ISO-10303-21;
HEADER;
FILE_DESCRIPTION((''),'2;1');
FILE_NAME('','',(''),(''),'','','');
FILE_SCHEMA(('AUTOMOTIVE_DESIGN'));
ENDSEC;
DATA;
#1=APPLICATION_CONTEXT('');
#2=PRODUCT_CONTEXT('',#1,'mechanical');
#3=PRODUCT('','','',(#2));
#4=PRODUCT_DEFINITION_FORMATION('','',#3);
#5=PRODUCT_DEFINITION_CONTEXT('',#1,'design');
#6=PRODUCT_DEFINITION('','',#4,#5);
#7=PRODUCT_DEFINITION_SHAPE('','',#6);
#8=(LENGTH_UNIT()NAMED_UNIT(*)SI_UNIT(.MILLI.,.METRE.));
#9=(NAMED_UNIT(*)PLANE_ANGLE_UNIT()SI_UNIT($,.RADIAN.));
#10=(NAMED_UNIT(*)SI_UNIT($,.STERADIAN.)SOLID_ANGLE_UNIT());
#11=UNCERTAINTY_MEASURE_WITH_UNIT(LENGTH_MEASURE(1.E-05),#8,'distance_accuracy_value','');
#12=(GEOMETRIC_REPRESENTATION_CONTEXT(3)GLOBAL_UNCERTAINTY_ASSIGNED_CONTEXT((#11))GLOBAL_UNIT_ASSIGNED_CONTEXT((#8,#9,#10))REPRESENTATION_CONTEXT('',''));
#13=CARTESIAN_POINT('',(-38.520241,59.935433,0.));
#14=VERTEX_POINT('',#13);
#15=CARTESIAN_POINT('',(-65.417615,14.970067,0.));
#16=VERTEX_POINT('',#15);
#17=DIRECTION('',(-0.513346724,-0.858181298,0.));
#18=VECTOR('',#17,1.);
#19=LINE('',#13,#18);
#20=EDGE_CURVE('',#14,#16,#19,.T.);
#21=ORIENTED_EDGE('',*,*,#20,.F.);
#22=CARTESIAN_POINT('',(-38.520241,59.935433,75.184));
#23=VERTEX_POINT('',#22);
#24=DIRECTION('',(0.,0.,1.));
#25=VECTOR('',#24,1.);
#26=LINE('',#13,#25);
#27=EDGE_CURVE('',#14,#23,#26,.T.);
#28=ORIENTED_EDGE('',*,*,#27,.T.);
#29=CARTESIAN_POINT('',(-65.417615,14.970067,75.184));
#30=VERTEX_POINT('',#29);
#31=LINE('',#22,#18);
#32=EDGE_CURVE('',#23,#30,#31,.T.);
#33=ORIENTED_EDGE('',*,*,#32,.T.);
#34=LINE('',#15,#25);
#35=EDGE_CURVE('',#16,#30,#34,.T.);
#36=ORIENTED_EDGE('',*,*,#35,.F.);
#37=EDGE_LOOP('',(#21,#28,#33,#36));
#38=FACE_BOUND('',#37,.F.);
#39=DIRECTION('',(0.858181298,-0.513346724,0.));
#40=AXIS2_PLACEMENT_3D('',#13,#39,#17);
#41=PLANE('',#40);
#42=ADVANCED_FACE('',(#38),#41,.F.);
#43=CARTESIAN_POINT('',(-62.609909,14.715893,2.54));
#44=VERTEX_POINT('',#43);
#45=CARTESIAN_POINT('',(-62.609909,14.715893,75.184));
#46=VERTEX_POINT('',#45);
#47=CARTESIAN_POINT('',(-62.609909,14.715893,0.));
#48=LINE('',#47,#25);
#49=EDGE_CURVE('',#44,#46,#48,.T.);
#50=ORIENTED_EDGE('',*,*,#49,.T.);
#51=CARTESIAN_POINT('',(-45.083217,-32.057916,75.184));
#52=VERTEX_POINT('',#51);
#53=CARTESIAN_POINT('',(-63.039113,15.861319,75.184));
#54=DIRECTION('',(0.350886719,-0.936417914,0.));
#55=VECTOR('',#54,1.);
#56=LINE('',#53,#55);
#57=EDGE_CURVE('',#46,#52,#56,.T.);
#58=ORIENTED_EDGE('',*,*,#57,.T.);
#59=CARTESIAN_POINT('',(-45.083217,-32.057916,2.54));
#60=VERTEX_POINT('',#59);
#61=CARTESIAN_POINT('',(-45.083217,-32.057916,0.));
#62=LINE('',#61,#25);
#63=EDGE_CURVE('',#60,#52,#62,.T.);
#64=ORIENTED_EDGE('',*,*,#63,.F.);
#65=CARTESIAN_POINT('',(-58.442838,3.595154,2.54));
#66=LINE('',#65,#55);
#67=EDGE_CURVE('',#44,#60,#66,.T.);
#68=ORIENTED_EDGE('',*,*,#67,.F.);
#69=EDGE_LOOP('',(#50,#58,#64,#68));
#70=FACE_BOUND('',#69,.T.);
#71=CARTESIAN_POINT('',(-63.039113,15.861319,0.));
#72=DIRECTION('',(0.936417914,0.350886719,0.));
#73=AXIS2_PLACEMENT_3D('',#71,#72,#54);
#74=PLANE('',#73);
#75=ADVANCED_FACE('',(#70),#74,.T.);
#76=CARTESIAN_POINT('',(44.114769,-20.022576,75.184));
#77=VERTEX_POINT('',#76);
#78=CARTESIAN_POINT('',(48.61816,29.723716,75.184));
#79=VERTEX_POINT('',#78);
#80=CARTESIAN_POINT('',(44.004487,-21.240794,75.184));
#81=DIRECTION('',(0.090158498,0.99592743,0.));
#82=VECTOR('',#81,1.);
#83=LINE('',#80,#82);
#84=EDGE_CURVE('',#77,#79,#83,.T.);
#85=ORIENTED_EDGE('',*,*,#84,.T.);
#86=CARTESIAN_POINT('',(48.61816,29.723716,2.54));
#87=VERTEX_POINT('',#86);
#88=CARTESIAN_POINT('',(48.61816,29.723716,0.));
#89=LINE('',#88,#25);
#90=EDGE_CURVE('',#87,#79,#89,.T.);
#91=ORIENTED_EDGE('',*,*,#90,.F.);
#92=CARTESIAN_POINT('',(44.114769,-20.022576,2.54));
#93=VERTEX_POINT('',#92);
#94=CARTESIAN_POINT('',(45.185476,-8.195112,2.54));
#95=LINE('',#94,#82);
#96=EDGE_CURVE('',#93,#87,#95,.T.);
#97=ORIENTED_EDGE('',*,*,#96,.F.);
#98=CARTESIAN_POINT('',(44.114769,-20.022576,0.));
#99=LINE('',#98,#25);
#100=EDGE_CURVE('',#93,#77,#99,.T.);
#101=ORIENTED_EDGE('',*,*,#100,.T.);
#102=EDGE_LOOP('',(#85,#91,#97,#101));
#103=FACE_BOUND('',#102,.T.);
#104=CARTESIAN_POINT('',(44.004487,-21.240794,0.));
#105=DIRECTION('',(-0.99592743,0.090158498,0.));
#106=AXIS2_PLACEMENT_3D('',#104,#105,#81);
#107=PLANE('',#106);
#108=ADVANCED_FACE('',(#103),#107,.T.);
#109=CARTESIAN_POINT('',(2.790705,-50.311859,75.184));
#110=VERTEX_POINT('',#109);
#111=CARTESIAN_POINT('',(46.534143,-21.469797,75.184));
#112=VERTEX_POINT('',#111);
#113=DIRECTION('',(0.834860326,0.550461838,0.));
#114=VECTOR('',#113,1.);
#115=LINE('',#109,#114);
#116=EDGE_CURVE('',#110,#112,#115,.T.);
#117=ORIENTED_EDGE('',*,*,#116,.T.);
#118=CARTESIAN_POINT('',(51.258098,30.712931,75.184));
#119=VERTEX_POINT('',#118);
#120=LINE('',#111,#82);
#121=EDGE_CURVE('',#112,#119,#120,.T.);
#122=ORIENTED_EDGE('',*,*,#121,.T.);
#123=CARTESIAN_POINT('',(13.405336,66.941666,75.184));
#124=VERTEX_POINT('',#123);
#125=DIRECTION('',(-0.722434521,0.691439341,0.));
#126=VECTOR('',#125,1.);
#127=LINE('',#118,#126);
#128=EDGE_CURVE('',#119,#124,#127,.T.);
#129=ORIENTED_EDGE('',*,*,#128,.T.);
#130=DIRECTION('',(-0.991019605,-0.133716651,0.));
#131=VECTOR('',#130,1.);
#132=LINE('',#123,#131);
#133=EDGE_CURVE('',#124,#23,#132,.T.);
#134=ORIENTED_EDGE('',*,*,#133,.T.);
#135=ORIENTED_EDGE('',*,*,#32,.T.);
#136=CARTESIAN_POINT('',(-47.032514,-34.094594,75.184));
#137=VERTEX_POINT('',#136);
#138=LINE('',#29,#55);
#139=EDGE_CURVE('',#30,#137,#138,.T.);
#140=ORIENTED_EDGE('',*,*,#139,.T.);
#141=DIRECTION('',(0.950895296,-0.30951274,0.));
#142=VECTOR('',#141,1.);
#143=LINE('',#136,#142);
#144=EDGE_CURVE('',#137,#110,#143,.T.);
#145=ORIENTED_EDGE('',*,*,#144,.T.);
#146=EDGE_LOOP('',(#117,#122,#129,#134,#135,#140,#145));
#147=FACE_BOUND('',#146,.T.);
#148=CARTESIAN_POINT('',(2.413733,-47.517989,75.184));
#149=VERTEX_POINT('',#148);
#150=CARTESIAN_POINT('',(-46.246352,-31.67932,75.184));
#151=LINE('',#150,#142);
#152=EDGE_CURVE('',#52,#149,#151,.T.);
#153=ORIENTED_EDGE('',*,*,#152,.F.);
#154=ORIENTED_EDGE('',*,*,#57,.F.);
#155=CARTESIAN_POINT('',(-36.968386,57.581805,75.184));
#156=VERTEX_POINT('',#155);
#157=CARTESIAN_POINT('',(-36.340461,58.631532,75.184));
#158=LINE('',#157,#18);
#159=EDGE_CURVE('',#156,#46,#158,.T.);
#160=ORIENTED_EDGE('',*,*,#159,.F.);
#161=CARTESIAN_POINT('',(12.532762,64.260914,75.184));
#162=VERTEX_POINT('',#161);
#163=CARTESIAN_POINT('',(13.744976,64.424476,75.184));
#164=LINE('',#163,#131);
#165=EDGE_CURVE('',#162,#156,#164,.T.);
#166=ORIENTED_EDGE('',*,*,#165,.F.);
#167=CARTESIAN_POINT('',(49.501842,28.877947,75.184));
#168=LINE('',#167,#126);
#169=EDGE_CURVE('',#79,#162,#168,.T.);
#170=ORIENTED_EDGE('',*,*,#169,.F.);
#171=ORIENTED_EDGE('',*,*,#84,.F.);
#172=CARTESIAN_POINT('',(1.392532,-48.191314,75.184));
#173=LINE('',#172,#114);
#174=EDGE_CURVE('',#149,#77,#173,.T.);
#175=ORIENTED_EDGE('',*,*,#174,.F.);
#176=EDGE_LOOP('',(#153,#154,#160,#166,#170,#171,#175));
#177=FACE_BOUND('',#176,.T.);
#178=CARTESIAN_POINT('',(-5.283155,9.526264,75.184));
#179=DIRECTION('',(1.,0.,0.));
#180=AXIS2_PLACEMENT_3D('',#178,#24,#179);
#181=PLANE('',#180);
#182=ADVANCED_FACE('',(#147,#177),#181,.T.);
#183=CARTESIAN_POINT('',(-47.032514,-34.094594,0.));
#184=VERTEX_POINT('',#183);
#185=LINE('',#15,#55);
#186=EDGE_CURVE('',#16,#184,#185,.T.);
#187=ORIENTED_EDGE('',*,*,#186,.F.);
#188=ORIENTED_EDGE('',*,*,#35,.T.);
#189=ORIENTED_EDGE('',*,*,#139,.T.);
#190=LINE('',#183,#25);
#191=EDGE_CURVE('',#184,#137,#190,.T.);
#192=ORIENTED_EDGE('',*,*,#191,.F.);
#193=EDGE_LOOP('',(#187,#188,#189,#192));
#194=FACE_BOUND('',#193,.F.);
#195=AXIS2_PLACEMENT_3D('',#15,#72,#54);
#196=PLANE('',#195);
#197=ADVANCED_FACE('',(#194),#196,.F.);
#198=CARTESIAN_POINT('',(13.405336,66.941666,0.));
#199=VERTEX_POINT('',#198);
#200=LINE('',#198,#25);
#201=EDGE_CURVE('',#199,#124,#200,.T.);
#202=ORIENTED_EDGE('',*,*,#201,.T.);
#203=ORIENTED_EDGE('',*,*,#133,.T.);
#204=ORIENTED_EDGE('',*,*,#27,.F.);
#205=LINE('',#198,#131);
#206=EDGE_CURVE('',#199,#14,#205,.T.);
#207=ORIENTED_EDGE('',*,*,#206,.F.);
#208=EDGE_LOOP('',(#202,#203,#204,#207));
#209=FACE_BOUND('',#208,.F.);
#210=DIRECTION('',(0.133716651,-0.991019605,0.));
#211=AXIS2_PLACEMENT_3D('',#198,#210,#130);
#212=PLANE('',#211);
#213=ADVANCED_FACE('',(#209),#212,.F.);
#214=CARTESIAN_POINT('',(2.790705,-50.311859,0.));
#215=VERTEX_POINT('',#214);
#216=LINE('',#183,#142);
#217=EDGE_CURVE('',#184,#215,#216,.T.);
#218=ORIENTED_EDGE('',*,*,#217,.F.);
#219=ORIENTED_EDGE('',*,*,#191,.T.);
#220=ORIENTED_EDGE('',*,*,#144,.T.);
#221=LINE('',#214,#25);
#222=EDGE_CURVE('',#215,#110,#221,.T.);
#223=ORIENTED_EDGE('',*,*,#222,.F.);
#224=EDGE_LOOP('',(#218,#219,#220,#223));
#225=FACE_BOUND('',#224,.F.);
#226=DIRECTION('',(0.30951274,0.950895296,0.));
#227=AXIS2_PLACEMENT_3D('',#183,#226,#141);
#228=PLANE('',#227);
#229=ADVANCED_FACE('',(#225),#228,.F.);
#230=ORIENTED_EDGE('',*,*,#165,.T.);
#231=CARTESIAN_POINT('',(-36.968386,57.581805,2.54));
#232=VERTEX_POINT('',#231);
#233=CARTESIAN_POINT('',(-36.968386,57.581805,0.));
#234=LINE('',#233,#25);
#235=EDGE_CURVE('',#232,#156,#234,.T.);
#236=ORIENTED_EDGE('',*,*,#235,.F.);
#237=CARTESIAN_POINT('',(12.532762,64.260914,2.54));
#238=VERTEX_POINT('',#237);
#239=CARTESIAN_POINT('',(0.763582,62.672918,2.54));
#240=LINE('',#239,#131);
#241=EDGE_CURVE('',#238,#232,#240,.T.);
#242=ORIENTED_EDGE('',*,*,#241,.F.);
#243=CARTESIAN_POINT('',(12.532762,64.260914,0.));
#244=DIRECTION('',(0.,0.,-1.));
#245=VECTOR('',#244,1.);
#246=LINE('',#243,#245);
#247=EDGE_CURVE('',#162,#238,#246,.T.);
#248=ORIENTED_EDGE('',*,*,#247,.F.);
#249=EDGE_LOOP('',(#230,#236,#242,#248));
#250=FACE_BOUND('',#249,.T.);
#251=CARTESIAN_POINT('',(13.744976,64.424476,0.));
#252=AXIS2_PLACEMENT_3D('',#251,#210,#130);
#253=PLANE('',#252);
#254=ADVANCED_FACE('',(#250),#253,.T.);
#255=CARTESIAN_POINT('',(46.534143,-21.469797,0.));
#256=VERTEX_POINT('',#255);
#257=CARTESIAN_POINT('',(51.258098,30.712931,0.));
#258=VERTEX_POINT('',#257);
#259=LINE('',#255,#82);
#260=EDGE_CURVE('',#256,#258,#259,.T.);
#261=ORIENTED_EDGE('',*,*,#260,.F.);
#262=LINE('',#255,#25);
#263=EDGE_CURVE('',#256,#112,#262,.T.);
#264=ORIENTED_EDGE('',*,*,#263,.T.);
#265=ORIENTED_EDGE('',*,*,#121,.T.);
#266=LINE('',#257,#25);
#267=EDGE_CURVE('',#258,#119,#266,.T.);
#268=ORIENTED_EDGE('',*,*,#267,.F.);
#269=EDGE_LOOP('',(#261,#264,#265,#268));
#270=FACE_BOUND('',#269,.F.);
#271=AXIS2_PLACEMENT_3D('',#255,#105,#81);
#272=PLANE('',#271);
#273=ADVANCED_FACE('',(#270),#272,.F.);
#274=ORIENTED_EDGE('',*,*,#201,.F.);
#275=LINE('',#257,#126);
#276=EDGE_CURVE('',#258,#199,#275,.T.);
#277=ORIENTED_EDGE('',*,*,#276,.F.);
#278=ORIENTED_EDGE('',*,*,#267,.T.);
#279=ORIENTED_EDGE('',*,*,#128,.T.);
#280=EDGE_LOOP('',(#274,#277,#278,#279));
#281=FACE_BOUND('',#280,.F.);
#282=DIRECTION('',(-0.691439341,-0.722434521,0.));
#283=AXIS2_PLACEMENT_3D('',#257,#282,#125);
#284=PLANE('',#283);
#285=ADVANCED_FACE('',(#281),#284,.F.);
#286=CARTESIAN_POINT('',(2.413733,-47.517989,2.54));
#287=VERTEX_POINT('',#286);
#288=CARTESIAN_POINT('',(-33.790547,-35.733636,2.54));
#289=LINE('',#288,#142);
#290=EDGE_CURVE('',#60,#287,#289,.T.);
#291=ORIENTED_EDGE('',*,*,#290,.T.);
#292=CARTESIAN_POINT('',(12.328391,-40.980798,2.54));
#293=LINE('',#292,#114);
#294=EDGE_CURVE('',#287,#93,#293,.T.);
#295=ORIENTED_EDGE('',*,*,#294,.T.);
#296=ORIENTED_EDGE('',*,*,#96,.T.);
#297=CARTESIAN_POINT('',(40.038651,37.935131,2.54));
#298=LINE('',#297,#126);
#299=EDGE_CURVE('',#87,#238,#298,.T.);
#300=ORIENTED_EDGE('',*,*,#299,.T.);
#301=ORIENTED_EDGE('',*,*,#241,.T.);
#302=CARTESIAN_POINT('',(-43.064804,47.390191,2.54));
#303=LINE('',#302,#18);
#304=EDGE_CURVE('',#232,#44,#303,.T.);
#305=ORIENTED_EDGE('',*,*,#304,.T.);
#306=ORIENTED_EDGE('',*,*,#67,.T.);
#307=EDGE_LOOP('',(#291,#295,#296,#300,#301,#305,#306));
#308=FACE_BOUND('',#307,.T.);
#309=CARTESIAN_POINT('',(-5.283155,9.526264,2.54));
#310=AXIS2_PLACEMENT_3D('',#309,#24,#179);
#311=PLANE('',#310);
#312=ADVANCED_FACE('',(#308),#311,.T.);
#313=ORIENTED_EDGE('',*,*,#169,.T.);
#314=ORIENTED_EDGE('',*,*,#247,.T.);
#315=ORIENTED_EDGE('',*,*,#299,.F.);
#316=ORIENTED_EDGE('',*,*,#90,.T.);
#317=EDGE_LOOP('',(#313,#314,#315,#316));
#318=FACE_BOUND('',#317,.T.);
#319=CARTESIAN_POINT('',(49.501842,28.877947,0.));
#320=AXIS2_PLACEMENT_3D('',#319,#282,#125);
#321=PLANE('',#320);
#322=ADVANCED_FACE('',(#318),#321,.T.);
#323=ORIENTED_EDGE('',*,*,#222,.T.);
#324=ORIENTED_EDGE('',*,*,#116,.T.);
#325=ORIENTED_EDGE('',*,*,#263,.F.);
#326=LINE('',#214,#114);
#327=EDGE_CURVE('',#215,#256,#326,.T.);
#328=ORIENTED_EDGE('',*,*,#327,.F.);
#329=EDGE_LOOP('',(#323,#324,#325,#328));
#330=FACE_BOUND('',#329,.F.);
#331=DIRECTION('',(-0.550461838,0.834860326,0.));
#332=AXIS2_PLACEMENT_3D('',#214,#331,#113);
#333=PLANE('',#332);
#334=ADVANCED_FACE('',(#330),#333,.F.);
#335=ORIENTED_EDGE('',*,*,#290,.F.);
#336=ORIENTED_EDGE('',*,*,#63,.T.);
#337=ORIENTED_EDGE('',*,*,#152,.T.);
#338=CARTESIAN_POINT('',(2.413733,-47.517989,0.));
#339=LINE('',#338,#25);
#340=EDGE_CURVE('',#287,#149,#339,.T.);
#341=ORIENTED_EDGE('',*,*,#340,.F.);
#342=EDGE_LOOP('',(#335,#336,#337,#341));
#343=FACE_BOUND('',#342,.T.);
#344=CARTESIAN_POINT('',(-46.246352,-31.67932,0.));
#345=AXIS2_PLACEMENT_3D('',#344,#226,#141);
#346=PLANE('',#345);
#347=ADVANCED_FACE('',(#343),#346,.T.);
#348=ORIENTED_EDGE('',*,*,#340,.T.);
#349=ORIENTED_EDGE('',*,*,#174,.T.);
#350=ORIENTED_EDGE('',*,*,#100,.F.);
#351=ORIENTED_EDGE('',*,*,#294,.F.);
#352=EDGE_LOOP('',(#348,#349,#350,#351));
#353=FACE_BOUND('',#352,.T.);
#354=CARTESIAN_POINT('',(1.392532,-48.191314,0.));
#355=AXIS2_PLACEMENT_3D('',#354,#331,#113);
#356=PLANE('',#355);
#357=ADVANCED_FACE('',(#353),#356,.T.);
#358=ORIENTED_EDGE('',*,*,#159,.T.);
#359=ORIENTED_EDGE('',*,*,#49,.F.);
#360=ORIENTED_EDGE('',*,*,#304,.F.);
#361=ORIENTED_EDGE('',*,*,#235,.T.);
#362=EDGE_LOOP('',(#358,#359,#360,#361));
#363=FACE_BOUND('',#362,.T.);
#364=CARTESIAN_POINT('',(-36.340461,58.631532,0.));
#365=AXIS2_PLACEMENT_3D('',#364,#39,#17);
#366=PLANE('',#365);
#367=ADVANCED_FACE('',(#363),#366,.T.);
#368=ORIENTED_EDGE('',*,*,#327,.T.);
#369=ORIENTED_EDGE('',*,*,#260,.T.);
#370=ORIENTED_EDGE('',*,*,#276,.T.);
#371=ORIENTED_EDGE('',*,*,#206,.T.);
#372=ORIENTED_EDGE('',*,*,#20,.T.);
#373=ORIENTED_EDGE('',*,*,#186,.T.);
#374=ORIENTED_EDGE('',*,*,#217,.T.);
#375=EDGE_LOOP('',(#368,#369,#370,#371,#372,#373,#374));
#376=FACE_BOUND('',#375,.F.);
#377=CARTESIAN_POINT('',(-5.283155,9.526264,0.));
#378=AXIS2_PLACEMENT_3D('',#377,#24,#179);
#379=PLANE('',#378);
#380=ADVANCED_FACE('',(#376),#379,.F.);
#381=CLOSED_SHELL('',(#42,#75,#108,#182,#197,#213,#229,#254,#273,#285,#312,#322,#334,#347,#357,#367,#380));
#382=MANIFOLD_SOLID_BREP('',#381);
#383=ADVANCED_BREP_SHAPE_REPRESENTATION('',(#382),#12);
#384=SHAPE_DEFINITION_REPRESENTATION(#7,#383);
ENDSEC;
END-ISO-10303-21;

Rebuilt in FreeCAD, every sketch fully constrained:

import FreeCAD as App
import Part
import Sketcher

V = App.Vector
Q = App.Units.Quantity


def faces_at(feature, points):
    """Names of the faces that lie closest to the given points."""
    faces = feature.Shape.Faces
    near = lambda p: min(range(len(faces)), key=lambda i: faces[i].distToShape(Part.Vertex(*p))[0])
    return sorted({f"Face{near(p) + 1}" for p in points})


def add_polygon(sketch, points):
    """Adds a closed chain of lines whose ends are joined by coincident constraints."""
    first, n = sketch.GeometryCount, len(points)
    for a, b in zip(points, points[1:] + points[:1]):
        sketch.addGeometry(Part.LineSegment(App.Vector(*a, 0), App.Vector(*b, 0)), False)
    for i in range(n):
        sketch.addConstraint(Sketcher.Constraint("Coincident", first + i, 2, first + (i + 1) % n, 1))

doc = App.newDocument("Part")
params = doc.addObject("Spreadsheet::Sheet", "Params")
for row, (alias, value) in enumerate([
    ("pad1_length", "2.96 in"),
    ("thickness_wall", "4 in"),
    ("thickness2_wall", "0.1 in"),
], start=1):
    params.set(f"A{row}", alias)
    params.set(f"B{row}", "=" + value)
    params.setAlias(f"B{row}", alias)

body = doc.addObject("PartDesign::Body", "Body")

# Sketch on XY plane
sketch1 = doc.addObject("Sketcher::SketchObject", "Sketch")
body.addObject(sketch1)
sketch1.AttachmentSupport = (doc.XY_Plane, [""])
sketch1.MapMode = "FlatFace"
add_polygon(sketch1, [(13, 67), (-39, 60), (-65, 15), (-47, -34), (3, -50), (47, -21), (51, 31)])  # lines 0-6
sketch1.addConstraint(Sketcher.Constraint("Equal", 0, 1))
sketch1.addConstraint(Sketcher.Constraint("Equal", 1, 2))
sketch1.addConstraint(Sketcher.Constraint("Equal", 2, 3))
sketch1.addConstraint(Sketcher.Constraint("Equal", 3, 4))
sketch1.addConstraint(Sketcher.Constraint("Equal", 4, 5))
sketch1.addConstraint(Sketcher.Constraint("Equal", 5, 6))
sketch1.addConstraint(Sketcher.Constraint("DistanceX", 1, 2, 2, 2, Q("18.385101 mm")))
sketch1.addConstraint(Sketcher.Constraint("DistanceY", 1, 2, 6, 2, Q("51.971599 mm")))
sketch1.addConstraint(Sketcher.Constraint("DistanceX", 0, 2, -1, 1, Q("38.520241 mm")))
sketch1.addConstraint(Sketcher.Constraint("DistanceY", 3, 2, -1, 1, Q("50.311859 mm")))
sketch1.addConstraint(Sketcher.Constraint("DistanceY", -1, 1, 5, 2, Q("30.712931 mm")))
sketch1.addConstraint(Sketcher.Constraint("DistanceY", 2, 2, 1, 2, Q("49.064661 mm")))
sketch1.addConstraint(Sketcher.Constraint("DistanceX", 2, 2, 3, 2, Q("49.823219 mm")))
sketch1.addConstraint(Sketcher.Constraint("DistanceY", 3, 2, 0, 2, Q("110.247292 mm")))
pad1 = doc.addObject("PartDesign::Pad", "Pad")
body.addObject(pad1)
pad1.Profile = sketch1
pad1.setExpression("Length", "Params.pad1_length")
doc.recompute()

thickness = doc.addObject("PartDesign::Thickness", "Thickness")
body.addObject(thickness)
thickness.Base = (pad1, faces_at(pad1, [(-7.08, 8.315, 75.184)]))
thickness.setExpression("Value", "Params.thickness_wall")
thickness.Reversed = True
thickness.Join = "Arc"
doc.recompute()

thickness2 = doc.addObject("PartDesign::Thickness", "Thickness001")
body.addObject(thickness2)
thickness2.Base = (thickness, faces_at(thickness, [(-7.08, 8.315, 75.184)]))
thickness2.setExpression("Value", "Params.thickness2_wall")
thickness2.Reversed = True
thickness2.Join = "Arc"

doc.recompute()
